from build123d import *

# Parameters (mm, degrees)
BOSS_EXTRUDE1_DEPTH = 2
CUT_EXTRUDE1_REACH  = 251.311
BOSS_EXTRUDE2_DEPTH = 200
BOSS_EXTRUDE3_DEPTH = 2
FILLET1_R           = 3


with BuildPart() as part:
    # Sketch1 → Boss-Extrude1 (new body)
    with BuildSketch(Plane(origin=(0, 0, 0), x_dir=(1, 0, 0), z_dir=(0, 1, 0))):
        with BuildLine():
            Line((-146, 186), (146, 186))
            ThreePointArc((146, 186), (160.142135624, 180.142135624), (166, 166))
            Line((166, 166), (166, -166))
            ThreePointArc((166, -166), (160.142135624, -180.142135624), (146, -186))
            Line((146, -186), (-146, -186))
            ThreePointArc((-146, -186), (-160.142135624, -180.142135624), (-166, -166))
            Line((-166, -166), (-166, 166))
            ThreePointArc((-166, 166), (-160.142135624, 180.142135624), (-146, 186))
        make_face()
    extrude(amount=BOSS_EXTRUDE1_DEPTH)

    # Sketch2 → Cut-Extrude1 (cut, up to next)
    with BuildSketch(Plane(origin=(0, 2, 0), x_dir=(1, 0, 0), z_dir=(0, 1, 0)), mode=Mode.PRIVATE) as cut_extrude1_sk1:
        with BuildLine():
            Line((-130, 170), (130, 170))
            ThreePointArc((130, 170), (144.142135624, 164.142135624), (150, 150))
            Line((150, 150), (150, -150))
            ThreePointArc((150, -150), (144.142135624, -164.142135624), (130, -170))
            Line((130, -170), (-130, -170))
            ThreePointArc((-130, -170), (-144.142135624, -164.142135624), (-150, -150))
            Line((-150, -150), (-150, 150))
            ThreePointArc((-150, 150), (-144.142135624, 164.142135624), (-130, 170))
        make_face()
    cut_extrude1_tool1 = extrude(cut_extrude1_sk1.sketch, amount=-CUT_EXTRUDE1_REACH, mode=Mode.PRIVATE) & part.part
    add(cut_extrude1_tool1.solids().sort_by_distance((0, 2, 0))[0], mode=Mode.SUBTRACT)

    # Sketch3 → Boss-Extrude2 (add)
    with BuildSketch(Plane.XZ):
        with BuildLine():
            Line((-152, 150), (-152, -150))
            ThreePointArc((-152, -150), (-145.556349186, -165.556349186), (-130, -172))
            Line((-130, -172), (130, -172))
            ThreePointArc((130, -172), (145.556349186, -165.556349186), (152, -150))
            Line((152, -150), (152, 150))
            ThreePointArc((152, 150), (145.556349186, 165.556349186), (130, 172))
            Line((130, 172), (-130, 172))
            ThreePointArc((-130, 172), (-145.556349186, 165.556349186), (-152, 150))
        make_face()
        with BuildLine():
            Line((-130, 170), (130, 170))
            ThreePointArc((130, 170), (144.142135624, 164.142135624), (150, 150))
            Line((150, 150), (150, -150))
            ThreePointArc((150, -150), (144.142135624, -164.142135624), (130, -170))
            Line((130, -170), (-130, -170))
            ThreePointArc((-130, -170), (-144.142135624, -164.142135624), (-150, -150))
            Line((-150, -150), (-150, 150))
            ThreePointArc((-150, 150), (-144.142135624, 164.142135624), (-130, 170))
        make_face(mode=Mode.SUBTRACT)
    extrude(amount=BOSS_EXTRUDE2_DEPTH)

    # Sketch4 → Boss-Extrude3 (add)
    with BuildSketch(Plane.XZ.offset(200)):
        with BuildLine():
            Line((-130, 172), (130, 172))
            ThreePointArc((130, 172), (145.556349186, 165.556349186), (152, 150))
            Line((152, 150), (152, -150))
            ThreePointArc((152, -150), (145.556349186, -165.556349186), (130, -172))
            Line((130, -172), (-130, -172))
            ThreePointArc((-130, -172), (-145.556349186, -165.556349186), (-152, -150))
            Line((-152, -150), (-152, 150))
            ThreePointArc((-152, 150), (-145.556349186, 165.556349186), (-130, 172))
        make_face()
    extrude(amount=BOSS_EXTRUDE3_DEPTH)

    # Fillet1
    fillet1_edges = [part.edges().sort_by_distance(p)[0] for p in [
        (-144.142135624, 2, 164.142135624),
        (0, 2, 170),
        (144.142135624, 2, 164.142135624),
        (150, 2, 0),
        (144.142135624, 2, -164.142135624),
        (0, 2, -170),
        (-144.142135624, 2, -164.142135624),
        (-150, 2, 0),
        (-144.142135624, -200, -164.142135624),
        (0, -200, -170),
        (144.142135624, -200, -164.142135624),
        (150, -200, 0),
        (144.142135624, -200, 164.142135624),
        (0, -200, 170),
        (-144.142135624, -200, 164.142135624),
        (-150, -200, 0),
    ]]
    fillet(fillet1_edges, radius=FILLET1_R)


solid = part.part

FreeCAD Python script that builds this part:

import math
import FreeCAD as App
import Part
import Sketcher
Q = App.Units.Quantity


def edges_at(feature, points):
    """Names of the edges that pass closest to the given points."""
    edges = feature.Shape.Edges
    near = lambda p: min(range(len(edges)), key=lambda i: edges[i].distToShape(Part.Vertex(*p))[0])
    return sorted({f"Edge{near(p) + 1}" for p in points})

doc = App.newDocument("Part")
params = doc.addObject("Spreadsheet::Sheet", "Params")
for row, (alias, value) in enumerate([
    ("sketch1_radius", "20 mm"),
    ("sketch1_width", "292 mm"),
    ("sketch1_height", "332 mm"),
    ("pad1_length", "2 mm"),
    ("sketch2_radius", "20 mm"),
    ("sketch2_width", "260 mm"),
    ("sketch2_height", "300 mm"),
    ("sketch3_radius", "22 mm"),
    ("sketch3_radius2", "20 mm"),
    ("sketch3_width", "260 mm"),
    ("sketch3_height", "300 mm"),
    ("pad2_length", "200 mm"),
    ("sketch4_radius", "22 mm"),
    ("sketch4_width", "260 mm"),
    ("sketch4_height", "300 mm"),
    ("pad3_length", "2 mm"),
    ("fillet_radius", "3 mm"),
], start=1):
    params.set(f"A{row}", alias)
    params.set(f"B{row}", "=" + value)
    params.setAlias(f"B{row}", alias)

body = doc.addObject("PartDesign::Body", "Body")

sketch1 = body.newObject("Sketcher::SketchObject", "Sketch")
sketch1.AttachmentSupport = (doc.getObject("XZ_Plane"), [""])
sketch1.MapMode = "FlatFace"
sketch1.addGeometry([
    Part.LineSegment(App.Vector(146, -186, 0), App.Vector(-146, -186, 0)),
    Part.ArcOfCircle(Part.Circle(App.Vector(-146, -166, 0), App.Vector(0, 0, 1), 20), math.radians(180), math.radians(270)),
    Part.LineSegment(App.Vector(-166, -166, 0), App.Vector(-166, 166, 0)),
    Part.ArcOfCircle(Part.Circle(App.Vector(-146, 166, 0), App.Vector(0, 0, 1), 20), math.radians(90), math.radians(180)),
    Part.LineSegment(App.Vector(-146, 186, 0), App.Vector(146, 186, 0)),
    Part.ArcOfCircle(Part.Circle(App.Vector(146, 166, 0), App.Vector(0, 0, 1), 20), math.radians(0), math.radians(90)),
    Part.LineSegment(App.Vector(166, 166, 0), App.Vector(166, -166, 0)),
    Part.ArcOfCircle(Part.Circle(App.Vector(146, -166, 0), App.Vector(0, 0, 1), 20), math.radians(-90), math.radians(0)),
], False)
sketch1.addConstraint([
    Sketcher.Constraint("Tangent", 0, 2, 1, 2),
    Sketcher.Constraint("Tangent", 1, 1, 2, 1),
    Sketcher.Constraint("Tangent", 2, 2, 3, 2),
    Sketcher.Constraint("Tangent", 3, 1, 4, 1),
    Sketcher.Constraint("Tangent", 4, 2, 5, 2),
    Sketcher.Constraint("Tangent", 5, 1, 6, 1),
    Sketcher.Constraint("Tangent", 6, 2, 7, 2),
    Sketcher.Constraint("Tangent", 7, 1, 0, 1),
    Sketcher.Constraint("Horizontal", 0),
    Sketcher.Constraint("Vertical", 2),
    Sketcher.Constraint("Horizontal", 4),
    Sketcher.Constraint("Vertical", 6),
    Sketcher.Constraint("Equal", 1, 3),
    Sketcher.Constraint("Equal", 3, 5),
    Sketcher.Constraint("Equal", 5, 7),
    Sketcher.Constraint("Symmetric", 1, 3, 5, 3, -1, 1),
    Sketcher.Constraint("Radius", 1, Q("20 mm")),
    Sketcher.Constraint("DistanceX", 0, 2, 0, 1, Q("292 mm")),
    Sketcher.Constraint("DistanceY", 2, 1, 2, 2, Q("332 mm")),
])
sketch1.setExpression("Constraints[16]", "Params.sketch1_radius")
sketch1.setExpression("Constraints[17]", "Params.sketch1_width")
sketch1.setExpression("Constraints[18]", "Params.sketch1_height")
pad1 = body.newObject("PartDesign::Pad", "Pad")
pad1.Profile = sketch1
pad1.setExpression("Length", "Params.pad1_length")
pad1.Reversed = True

sketch2 = body.newObject("Sketcher::SketchObject", "Sketch001")
sketch2.AttachmentSupport = (doc.getObject("XZ_Plane"), [""])
sketch2.MapMode = "FlatFace"
sketch2.AttachmentOffset = App.Placement(App.Vector(0, 0, -2), App.Rotation())
sketch2.addGeometry([
    Part.LineSegment(App.Vector(130, -170, 0), App.Vector(-130, -170, 0)),
    Part.ArcOfCircle(Part.Circle(App.Vector(-130, -150, 0), App.Vector(0, 0, 1), 20), math.radians(180), math.radians(270)),
    Part.LineSegment(App.Vector(-150, -150, 0), App.Vector(-150, 150, 0)),
    Part.ArcOfCircle(Part.Circle(App.Vector(-130, 150, 0), App.Vector(0, 0, 1), 20), math.radians(90), math.radians(180)),
    Part.LineSegment(App.Vector(-130, 170, 0), App.Vector(130, 170, 0)),
    Part.ArcOfCircle(Part.Circle(App.Vector(130, 150, 0), App.Vector(0, 0, 1), 20), math.radians(0), math.radians(90)),
    Part.LineSegment(App.Vector(150, 150, 0), App.Vector(150, -150, 0)),
    Part.ArcOfCircle(Part.Circle(App.Vector(130, -150, 0), App.Vector(0, 0, 1), 20), math.radians(-90), math.radians(0)),
], False)
sketch2.addConstraint([
    Sketcher.Constraint("Tangent", 0, 2, 1, 2),
    Sketcher.Constraint("Tangent", 1, 1, 2, 1),
    Sketcher.Constraint("Tangent", 2, 2, 3, 2),
    Sketcher.Constraint("Tangent", 3, 1, 4, 1),
    Sketcher.Constraint("Tangent", 4, 2, 5, 2),
    Sketcher.Constraint("Tangent", 5, 1, 6, 1),
    Sketcher.Constraint("Tangent", 6, 2, 7, 2),
    Sketcher.Constraint("Tangent", 7, 1, 0, 1),
    Sketcher.Constraint("Horizontal", 0),
    Sketcher.Constraint("Vertical", 2),
    Sketcher.Constraint("Horizontal", 4),
    Sketcher.Constraint("Vertical", 6),
    Sketcher.Constraint("Equal", 1, 3),
    Sketcher.Constraint("Equal", 3, 5),
    Sketcher.Constraint("Equal", 5, 7),
    Sketcher.Constraint("Symmetric", 1, 3, 5, 3, -1, 1),
    Sketcher.Constraint("Radius", 1, Q("20 mm")),
    Sketcher.Constraint("DistanceX", 0, 2, 0, 1, Q("260 mm")),
    Sketcher.Constraint("DistanceY", 2, 1, 2, 2, Q("300 mm")),
])
sketch2.setExpression("Constraints[16]", "Params.sketch2_radius")
sketch2.setExpression("Constraints[17]", "Params.sketch2_width")
sketch2.setExpression("Constraints[18]", "Params.sketch2_height")
pocket1 = body.newObject("PartDesign::Pocket", "Pocket")
pocket1.Profile = sketch2
pocket1.Type = "UpToFirst"
pocket1.Reversed = True

sketch3 = body.newObject("Sketcher::SketchObject", "Sketch002")
sketch3.AttachmentSupport = (doc.getObject("XZ_Plane"), [""])
sketch3.MapMode = "FlatFace"
sketch3.addGeometry([
    Part.LineSegment(App.Vector(-152, 150, 0), App.Vector(-152, -150, 0)),
    Part.ArcOfCircle(Part.Circle(App.Vector(-130, -150, 0), App.Vector(0, 0, 1), 22), math.radians(180), math.radians(270)),
    Part.LineSegment(App.Vector(-130, -172, 0), App.Vector(130, -172, 0)),
    Part.ArcOfCircle(Part.Circle(App.Vector(130, -150, 0), App.Vector(0, 0, 1), 22), math.radians(-90), math.radians(0)),
    Part.LineSegment(App.Vector(152, -150, 0), App.Vector(152, 150, 0)),
    Part.ArcOfCircle(Part.Circle(App.Vector(130, 150, 0), App.Vector(0, 0, 1), 22), math.radians(0), math.radians(90)),
    Part.LineSegment(App.Vector(130, 172, 0), App.Vector(-130, 172, 0)),
    Part.ArcOfCircle(Part.Circle(App.Vector(-130, 150, 0), App.Vector(0, 0, 1), 22), math.radians(90), math.radians(180)),
    Part.ArcOfCircle(Part.Circle(App.Vector(-130, 150, 0), App.Vector(0, 0, 1), 20), math.radians(90), math.radians(180)),
    Part.LineSegment(App.Vector(-130, 170, 0), App.Vector(130, 170, 0)),
    Part.ArcOfCircle(Part.Circle(App.Vector(130, 150, 0), App.Vector(0, 0, 1), 20), math.radians(0), math.radians(90)),
    Part.LineSegment(App.Vector(150, 150, 0), App.Vector(150, -150, 0)),
    Part.ArcOfCircle(Part.Circle(App.Vector(130, -150, 0), App.Vector(0, 0, 1), 20), math.radians(-90), math.radians(0)),
    Part.LineSegment(App.Vector(130, -170, 0), App.Vector(-130, -170, 0)),
    Part.ArcOfCircle(Part.Circle(App.Vector(-130, -150, 0), App.Vector(0, 0, 1), 20), math.radians(180), math.radians(270)),
    Part.LineSegment(App.Vector(-150, -150, 0), App.Vector(-150, 150, 0)),
], False)
sketch3.addConstraint([
    Sketcher.Constraint("Tangent", 0, 2, 1, 1),
    Sketcher.Constraint("Tangent", 1, 2, 2, 1),
    Sketcher.Constraint("Tangent", 2, 2, 3, 1),
    Sketcher.Constraint("Tangent", 3, 2, 4, 1),
    Sketcher.Constraint("Tangent", 4, 2, 5, 1),
    Sketcher.Constraint("Tangent", 5, 2, 6, 1),
    Sketcher.Constraint("Tangent", 6, 2, 7, 1),
    Sketcher.Constraint("Tangent", 7, 2, 0, 1),
    Sketcher.Constraint("Tangent", 8, 1, 9, 1),
    Sketcher.Constraint("Tangent", 9, 2, 10, 2),
    Sketcher.Constraint("Tangent", 10, 1, 11, 1),
    Sketcher.Constraint("Tangent", 11, 2, 12, 2),
    Sketcher.Constraint("Tangent", 12, 1, 13, 1),
    Sketcher.Constraint("Tangent", 13, 2, 14, 2),
    Sketcher.Constraint("Tangent", 14, 1, 15, 1),
    Sketcher.Constraint("Tangent", 15, 2, 8, 2),
    Sketcher.Constraint("Vertical", 0),
    Sketcher.Constraint("Horizontal", 2),
    Sketcher.Constraint("Vertical", 4),
    Sketcher.Constraint("Horizontal", 6),
    Sketcher.Constraint("Horizontal", 9),
    Sketcher.Constraint("Vertical", 11),
    Sketcher.Constraint("Horizontal", 13),
    Sketcher.Constraint("Vertical", 15),
    Sketcher.Constraint("Coincident", 8, 3, 7, 3),
    Sketcher.Constraint("Coincident", 10, 3, 5, 3),
    Sketcher.Constraint("Coincident", 12, 3, 3, 3),
    Sketcher.Constraint("Equal", 1, 3),
    Sketcher.Constraint("Equal", 3, 5),
    Sketcher.Constraint("Equal", 5, 7),
    Sketcher.Constraint("Equal", 12, 14),
    Sketcher.Constraint("Symmetric", 1, 3, 5, 3, -1, 1),
    Sketcher.Constraint("Radius", 1, Q("22 mm")),
    Sketcher.Constraint("Radius", 8, Q("20 mm")),
    Sketcher.Constraint("DistanceX", 2, 1, 2, 2, Q("260 mm")),
    Sketcher.Constraint("DistanceY", 0, 2, 0, 1, Q("300 mm")),
])
sketch3.setExpression("Constraints[32]", "Params.sketch3_radius")
sketch3.setExpression("Constraints[33]", "Params.sketch3_radius2")
sketch3.setExpression("Constraints[34]", "Params.sketch3_width")
sketch3.setExpression("Constraints[35]", "Params.sketch3_height")
pad2 = body.newObject("PartDesign::Pad", "Pad001")
pad2.Profile = sketch3
pad2.setExpression("Length", "Params.pad2_length")

sketch4 = body.newObject("Sketcher::SketchObject", "Sketch003")
sketch4.AttachmentSupport = (doc.getObject("XZ_Plane"), [""])
sketch4.MapMode = "FlatFace"
sketch4.AttachmentOffset = App.Placement(App.Vector(0, 0, 200), App.Rotation())
sketch4.addGeometry([
    Part.LineSegment(App.Vector(130, 172, 0), App.Vector(-130, 172, 0)),
    Part.ArcOfCircle(Part.Circle(App.Vector(-130, 150, 0), App.Vector(0, 0, 1), 22), math.radians(90), math.radians(180)),
    Part.LineSegment(App.Vector(-152, 150, 0), App.Vector(-152, -150, 0)),
    Part.ArcOfCircle(Part.Circle(App.Vector(-130, -150, 0), App.Vector(0, 0, 1), 22), math.radians(180), math.radians(270)),
    Part.LineSegment(App.Vector(-130, -172, 0), App.Vector(130, -172, 0)),
    Part.ArcOfCircle(Part.Circle(App.Vector(130, -150, 0), App.Vector(0, 0, 1), 22), math.radians(-90), math.radians(0)),
    Part.LineSegment(App.Vector(152, -150, 0), App.Vector(152, 150, 0)),
    Part.ArcOfCircle(Part.Circle(App.Vector(130, 150, 0), App.Vector(0, 0, 1), 22), math.radians(0), math.radians(90)),
], False)
sketch4.addConstraint([
    Sketcher.Constraint("Tangent", 0, 2, 1, 1),
    Sketcher.Constraint("Tangent", 1, 2, 2, 1),
    Sketcher.Constraint("Tangent", 2, 2, 3, 1),
    Sketcher.Constraint("Tangent", 3, 2, 4, 1),
    Sketcher.Constraint("Tangent", 4, 2, 5, 1),
    Sketcher.Constraint("Tangent", 5, 2, 6, 1),
    Sketcher.Constraint("Tangent", 6, 2, 7, 1),
    Sketcher.Constraint("Tangent", 7, 2, 0, 1),
    Sketcher.Constraint("Horizontal", 0),
    Sketcher.Constraint("Vertical", 2),
    Sketcher.Constraint("Horizontal", 4),
    Sketcher.Constraint("Vertical", 6),
    Sketcher.Constraint("Equal", 1, 3),
    Sketcher.Constraint("Equal", 3, 5),
    Sketcher.Constraint("Equal", 5, 7),
    Sketcher.Constraint("Symmetric", 1, 3, 5, 3, -1, 1),
    Sketcher.Constraint("Radius", 1, Q("22 mm")),
    Sketcher.Constraint("DistanceX", 0, 2, 0, 1, Q("260 mm")),
    Sketcher.Constraint("DistanceY", 2, 2, 2, 1, Q("300 mm")),
])
sketch4.setExpression("Constraints[16]", "Params.sketch4_radius")
sketch4.setExpression("Constraints[17]", "Params.sketch4_width")
sketch4.setExpression("Constraints[18]", "Params.sketch4_height")
pad3 = body.newObject("PartDesign::Pad", "Pad002")
pad3.Profile = sketch4
pad3.setExpression("Length", "Params.pad3_length")
doc.recompute()

fillet = body.newObject("PartDesign::Fillet", "Fillet")
fillet.Base = (pad3, edges_at(pad3, [
    (-144.142, 2, 164.142),
    (0, 2, 170),
    (144.142, 2, 164.142),
    (150, 2, 0),
    (144.142, 2, -164.142),
    (0, 2, -170),
    (-144.142, 2, -164.142),
    (-150, 2, 0),
    (-144.142, -200, -164.142),
    (0, -200, -170),
    (144.142, -200, -164.142),
    (150, -200, 0),
    (144.142, -200, 164.142),
    (0, -200, 170),
    (-144.142, -200, 164.142),
    (-150, -200, 0),
]))
fillet.setExpression("Radius", "Params.fillet_radius")

doc.recompute()
